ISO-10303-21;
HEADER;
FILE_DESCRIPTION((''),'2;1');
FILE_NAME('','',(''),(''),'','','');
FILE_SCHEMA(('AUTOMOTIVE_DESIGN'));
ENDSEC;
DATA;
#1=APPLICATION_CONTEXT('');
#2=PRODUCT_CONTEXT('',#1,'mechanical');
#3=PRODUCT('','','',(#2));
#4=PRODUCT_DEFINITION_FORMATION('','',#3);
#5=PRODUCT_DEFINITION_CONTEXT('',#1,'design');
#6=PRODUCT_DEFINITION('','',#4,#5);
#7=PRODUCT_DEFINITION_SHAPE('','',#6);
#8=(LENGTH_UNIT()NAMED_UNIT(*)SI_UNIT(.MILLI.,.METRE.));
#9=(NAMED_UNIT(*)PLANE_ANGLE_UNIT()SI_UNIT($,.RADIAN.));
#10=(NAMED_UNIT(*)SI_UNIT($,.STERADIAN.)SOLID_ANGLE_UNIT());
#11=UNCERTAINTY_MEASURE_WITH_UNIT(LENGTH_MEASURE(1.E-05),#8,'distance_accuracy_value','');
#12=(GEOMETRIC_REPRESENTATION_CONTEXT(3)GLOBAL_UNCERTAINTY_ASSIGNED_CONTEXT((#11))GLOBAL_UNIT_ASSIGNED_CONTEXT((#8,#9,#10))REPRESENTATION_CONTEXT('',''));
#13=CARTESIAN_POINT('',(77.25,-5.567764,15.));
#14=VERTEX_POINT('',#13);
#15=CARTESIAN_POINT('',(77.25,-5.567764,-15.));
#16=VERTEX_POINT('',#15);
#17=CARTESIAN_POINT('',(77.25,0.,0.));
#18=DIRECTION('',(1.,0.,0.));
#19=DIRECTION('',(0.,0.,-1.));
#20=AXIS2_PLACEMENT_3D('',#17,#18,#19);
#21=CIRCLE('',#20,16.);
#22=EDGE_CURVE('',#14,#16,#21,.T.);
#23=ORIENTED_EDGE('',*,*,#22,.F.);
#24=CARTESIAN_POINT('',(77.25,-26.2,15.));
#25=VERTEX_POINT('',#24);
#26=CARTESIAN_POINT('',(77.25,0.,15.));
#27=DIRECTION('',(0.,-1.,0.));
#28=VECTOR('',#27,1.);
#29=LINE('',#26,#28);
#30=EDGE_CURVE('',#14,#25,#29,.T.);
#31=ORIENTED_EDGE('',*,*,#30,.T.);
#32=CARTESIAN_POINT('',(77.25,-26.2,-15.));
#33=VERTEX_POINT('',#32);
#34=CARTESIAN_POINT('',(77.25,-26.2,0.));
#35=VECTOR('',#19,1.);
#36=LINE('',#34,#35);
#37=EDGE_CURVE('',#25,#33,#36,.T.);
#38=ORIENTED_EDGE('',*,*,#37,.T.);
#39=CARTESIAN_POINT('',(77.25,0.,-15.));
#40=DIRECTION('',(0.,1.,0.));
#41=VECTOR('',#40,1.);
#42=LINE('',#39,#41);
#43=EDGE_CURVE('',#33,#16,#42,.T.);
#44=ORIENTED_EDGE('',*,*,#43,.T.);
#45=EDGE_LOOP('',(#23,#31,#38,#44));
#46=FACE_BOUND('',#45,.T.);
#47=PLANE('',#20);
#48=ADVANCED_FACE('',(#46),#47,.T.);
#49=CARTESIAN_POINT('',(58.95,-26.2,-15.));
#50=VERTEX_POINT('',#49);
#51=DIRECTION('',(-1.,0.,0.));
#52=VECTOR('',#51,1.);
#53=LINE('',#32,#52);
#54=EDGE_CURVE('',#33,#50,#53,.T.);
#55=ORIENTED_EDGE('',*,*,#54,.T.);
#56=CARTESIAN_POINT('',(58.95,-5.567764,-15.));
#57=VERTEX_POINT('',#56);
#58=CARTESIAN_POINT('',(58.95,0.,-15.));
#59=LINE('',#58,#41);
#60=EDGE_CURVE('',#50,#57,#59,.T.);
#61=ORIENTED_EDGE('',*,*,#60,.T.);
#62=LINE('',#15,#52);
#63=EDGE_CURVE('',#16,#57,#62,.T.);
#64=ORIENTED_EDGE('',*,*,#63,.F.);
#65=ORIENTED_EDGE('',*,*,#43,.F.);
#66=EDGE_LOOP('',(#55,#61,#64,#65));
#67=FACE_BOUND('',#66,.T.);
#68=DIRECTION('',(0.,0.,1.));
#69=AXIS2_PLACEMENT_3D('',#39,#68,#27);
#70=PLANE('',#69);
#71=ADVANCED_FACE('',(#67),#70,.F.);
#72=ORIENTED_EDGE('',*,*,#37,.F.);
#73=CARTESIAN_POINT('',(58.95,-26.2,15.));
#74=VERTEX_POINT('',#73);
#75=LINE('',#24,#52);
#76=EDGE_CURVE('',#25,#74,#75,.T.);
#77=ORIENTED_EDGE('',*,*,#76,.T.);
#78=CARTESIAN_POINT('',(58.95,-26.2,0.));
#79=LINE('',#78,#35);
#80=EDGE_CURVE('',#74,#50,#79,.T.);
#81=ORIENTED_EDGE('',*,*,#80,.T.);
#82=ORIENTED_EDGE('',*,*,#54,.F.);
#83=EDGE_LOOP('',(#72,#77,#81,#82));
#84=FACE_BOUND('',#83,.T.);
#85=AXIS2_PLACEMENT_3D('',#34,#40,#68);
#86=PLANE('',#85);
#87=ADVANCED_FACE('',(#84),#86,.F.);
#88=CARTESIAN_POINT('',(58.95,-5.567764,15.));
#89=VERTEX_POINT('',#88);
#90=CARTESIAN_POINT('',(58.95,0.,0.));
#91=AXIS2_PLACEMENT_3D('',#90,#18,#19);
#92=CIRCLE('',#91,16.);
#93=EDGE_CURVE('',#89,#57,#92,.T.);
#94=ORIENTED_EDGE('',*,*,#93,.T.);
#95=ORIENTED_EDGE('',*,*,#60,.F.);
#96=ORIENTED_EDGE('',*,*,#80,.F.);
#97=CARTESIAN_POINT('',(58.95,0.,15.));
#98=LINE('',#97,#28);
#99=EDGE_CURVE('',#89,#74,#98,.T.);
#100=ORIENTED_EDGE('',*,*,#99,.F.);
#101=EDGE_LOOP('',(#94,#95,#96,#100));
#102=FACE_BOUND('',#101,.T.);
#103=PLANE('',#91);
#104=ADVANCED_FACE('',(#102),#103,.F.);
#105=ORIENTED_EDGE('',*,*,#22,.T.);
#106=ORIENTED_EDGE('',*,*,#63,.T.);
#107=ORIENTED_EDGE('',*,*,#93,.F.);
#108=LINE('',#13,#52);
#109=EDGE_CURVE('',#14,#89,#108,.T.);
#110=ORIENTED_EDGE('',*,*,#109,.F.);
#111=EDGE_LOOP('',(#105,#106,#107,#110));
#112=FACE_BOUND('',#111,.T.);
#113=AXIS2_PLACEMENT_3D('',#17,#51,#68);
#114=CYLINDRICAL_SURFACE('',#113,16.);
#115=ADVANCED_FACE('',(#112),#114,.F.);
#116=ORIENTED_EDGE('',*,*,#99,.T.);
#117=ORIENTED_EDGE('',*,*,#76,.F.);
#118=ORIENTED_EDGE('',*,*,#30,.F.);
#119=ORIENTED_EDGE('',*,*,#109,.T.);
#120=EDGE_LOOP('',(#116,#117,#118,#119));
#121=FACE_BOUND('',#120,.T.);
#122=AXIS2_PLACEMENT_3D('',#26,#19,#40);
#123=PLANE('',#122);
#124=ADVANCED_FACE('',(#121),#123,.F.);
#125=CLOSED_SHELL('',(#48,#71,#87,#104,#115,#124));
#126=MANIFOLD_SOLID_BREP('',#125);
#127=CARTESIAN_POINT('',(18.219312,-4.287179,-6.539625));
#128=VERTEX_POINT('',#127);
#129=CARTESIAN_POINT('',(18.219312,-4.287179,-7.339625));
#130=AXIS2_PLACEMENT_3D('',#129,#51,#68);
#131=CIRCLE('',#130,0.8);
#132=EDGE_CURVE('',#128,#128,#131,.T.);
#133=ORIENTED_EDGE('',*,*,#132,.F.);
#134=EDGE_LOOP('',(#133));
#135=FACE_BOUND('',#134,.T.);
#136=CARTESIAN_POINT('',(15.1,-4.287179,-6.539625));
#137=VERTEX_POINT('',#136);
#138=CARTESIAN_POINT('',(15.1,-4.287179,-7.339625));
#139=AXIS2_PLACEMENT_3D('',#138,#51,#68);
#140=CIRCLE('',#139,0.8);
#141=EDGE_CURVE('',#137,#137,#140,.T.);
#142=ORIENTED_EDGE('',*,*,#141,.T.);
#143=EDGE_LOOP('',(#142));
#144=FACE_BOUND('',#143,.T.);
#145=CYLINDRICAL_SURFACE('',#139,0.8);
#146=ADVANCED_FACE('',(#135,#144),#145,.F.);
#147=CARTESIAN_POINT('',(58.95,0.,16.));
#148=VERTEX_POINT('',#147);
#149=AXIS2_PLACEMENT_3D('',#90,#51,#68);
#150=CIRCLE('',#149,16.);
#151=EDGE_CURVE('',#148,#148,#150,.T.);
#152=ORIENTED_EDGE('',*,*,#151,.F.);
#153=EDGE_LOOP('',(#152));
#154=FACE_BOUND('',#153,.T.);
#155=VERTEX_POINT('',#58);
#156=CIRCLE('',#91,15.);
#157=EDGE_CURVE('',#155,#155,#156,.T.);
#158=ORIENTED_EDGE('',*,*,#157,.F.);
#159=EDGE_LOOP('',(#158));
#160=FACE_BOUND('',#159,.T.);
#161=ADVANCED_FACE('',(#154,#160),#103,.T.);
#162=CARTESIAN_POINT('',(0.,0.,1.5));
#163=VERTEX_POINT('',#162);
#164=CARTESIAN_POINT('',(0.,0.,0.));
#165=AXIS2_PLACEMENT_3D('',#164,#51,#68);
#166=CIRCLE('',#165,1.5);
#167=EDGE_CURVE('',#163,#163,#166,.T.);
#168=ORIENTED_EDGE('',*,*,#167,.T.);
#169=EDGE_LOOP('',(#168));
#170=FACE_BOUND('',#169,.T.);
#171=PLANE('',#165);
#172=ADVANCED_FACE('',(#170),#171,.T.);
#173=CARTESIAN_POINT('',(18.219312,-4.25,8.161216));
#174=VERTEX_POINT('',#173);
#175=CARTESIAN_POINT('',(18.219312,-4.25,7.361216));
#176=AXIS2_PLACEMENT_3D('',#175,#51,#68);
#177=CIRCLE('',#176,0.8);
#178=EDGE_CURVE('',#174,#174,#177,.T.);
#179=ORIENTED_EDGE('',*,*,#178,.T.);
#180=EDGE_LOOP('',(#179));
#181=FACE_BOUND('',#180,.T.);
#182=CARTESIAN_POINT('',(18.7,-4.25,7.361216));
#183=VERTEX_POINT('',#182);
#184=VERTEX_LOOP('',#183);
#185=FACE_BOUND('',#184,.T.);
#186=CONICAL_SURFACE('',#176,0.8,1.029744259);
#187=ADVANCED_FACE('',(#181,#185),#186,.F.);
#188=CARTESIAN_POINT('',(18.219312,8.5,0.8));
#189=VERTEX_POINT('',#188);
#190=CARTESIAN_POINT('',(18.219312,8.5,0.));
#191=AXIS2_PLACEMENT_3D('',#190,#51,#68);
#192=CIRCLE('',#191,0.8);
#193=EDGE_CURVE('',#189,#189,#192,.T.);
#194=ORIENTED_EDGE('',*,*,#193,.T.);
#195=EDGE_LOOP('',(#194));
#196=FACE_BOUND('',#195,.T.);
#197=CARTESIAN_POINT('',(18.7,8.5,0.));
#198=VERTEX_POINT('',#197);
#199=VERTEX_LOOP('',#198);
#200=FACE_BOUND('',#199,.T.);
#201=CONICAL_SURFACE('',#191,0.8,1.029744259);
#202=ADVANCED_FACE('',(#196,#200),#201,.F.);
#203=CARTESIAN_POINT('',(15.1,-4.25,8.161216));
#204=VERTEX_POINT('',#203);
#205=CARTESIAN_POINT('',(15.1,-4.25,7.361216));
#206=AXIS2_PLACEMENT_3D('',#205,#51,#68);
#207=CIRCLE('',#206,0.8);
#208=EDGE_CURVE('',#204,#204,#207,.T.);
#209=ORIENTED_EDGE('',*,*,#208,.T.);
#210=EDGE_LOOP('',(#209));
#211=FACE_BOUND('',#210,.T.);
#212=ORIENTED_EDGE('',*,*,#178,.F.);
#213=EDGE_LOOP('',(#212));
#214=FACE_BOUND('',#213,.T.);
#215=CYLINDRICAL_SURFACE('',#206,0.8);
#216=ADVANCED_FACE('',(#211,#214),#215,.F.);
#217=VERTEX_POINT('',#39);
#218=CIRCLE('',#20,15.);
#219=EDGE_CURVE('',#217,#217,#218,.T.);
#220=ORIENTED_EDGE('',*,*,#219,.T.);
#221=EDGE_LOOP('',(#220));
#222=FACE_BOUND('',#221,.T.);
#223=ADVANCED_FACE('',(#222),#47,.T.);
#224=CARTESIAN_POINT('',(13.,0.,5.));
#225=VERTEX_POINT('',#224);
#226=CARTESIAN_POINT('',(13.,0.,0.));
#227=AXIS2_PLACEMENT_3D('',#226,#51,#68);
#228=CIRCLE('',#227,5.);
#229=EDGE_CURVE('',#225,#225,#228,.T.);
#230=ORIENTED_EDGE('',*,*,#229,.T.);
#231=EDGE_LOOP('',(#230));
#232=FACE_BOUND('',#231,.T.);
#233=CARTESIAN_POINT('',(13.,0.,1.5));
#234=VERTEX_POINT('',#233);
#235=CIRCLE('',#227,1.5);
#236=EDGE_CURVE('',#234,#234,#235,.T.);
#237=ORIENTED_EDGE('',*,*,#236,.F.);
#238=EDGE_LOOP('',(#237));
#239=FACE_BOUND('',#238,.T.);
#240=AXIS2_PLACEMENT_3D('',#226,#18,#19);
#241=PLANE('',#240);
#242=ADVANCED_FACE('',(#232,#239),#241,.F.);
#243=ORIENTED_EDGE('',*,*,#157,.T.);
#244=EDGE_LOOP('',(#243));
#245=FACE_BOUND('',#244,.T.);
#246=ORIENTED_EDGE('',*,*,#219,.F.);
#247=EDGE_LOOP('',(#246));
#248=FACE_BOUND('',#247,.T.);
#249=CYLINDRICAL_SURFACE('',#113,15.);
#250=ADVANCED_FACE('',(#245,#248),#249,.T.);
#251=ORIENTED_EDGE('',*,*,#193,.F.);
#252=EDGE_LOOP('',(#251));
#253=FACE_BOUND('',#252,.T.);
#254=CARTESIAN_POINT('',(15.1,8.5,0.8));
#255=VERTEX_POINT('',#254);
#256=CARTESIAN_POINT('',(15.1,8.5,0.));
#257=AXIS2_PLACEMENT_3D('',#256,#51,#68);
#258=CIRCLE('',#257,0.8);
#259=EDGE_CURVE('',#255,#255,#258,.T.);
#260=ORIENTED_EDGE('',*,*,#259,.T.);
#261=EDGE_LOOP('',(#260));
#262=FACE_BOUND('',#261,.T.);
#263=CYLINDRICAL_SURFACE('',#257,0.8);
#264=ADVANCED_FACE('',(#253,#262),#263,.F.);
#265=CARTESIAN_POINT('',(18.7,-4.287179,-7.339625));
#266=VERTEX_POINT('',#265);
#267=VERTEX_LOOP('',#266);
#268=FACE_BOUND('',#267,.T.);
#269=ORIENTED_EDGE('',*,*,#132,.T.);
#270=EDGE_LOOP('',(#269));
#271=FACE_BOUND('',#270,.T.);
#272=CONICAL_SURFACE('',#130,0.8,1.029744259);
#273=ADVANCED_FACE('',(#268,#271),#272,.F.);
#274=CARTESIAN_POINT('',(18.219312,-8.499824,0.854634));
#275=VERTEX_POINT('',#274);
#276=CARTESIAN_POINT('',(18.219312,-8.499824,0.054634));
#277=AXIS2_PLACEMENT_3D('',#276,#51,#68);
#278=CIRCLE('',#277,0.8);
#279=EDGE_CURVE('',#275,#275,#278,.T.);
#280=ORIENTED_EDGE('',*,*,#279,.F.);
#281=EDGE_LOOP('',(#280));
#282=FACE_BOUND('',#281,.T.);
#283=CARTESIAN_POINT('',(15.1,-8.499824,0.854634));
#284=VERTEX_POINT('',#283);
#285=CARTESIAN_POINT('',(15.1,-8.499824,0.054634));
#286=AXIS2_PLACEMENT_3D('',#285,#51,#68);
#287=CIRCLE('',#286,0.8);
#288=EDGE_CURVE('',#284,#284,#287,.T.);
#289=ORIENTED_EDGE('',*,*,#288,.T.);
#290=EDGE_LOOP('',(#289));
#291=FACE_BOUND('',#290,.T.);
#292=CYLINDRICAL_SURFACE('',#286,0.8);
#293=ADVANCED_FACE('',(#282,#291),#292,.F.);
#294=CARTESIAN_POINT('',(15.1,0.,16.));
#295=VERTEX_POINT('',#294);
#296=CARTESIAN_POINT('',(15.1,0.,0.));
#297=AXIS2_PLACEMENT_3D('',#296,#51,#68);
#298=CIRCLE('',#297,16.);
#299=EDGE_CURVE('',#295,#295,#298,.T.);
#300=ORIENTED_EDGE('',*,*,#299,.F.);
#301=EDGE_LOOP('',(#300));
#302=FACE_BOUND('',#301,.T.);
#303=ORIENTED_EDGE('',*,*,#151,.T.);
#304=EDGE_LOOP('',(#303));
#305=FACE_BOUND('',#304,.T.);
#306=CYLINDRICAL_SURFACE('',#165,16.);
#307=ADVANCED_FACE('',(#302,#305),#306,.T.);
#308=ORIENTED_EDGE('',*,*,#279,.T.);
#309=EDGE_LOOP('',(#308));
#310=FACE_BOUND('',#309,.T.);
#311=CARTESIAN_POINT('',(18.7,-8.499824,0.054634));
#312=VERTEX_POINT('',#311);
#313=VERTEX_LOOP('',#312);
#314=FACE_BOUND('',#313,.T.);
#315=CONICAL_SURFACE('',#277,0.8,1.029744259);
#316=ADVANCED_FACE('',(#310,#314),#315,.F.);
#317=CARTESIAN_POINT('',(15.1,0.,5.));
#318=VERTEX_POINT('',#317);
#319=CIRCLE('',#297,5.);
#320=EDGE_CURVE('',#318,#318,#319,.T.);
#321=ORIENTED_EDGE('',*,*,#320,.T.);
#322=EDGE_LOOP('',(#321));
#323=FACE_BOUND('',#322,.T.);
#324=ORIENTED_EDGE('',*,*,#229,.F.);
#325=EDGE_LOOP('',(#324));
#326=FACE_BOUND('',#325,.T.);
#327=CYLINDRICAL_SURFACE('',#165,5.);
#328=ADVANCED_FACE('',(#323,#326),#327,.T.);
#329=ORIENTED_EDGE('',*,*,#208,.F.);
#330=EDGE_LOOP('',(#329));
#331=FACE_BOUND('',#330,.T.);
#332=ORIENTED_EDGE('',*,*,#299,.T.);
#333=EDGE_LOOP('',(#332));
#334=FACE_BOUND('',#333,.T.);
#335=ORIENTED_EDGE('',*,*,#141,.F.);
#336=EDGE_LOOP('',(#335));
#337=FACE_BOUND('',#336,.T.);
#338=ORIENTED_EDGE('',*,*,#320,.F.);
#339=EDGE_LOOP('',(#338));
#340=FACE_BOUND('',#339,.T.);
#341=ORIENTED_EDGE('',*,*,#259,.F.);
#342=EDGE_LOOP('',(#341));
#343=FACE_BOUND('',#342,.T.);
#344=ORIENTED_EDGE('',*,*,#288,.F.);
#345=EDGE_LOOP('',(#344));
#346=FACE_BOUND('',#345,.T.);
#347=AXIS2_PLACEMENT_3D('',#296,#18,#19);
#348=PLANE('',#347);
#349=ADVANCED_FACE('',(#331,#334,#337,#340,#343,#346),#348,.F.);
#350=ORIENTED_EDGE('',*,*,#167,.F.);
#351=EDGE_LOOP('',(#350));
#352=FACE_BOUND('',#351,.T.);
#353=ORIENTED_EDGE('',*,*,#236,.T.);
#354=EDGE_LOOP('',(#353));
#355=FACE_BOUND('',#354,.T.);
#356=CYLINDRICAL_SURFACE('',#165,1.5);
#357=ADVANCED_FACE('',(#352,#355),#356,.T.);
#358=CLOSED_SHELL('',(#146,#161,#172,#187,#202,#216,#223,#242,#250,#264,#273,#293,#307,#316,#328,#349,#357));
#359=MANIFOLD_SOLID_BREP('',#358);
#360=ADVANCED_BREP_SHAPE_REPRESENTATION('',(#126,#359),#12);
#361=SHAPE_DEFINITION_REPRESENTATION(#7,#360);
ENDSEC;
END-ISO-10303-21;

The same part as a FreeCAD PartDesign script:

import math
import FreeCAD as App
import Part
import Sketcher

doc = App.newDocument("Part")
params = doc.addObject("Spreadsheet::Sheet", "Params")
for row, (alias, value) in enumerate([
    ("sketch1_width", "13 mm"),
    ("sketch1_height", "16 mm"),
    ("sketch1_height2", "11 mm"),
    ("sketch1_width2", "2.1 mm"),
    ("sketch1_height3", "1.5 mm"),
    ("revolution_angle", "360 deg"),
    ("sketch2_diameter", "30 mm"),
    ("sketch2_radius", "16 mm"),
    ("sketch2_height", "30 mm"),
    ("pad1_length", "18.3 mm"),
    ("sketch3_diameter", "1.6 mm"),
    ("hole_diameter", "1.6 mm"),
    ("hole_depth", "3.119312 mm"),
], start=1):
    params.set(f"A{row}", alias)
    params.set(f"B{row}", "=" + value)
    params.setAlias(f"B{row}", alias)

body = doc.addObject("PartDesign::Body", "Body")
body.AllowCompound = True

sketch1 = doc.addObject("Sketcher::SketchObject", "Sketch")
body.addObject(sketch1)
sketch1.AttachmentSupport = (doc.XZ_Plane, [""])
sketch1.MapMode = "FlatFace"
sketch1.addGeometry([
    Part.LineSegment(App.Vector(0, -1.5, 0), App.Vector(0, 0, 0)),
    Part.LineSegment(App.Vector(0, 0, 0), App.Vector(59, 0, 0)),
    Part.LineSegment(App.Vector(59, 0, 0), App.Vector(59, -16, 0)),
    Part.LineSegment(App.Vector(59, -16, 0), App.Vector(15.1, -16, 0)),
    Part.LineSegment(App.Vector(15.1, -16, 0), App.Vector(15.1, -5, 0)),
    Part.LineSegment(App.Vector(15.1, -5, 0), App.Vector(13, -5, 0)),
    Part.LineSegment(App.Vector(13, -5, 0), App.Vector(13, -1.5, 0)),
    Part.LineSegment(App.Vector(13, -1.5, 0), App.Vector(0, -1.5, 0)),
], False)
sketch1.addConstraint([
    Sketcher.Constraint("Coincident", 0, 2, 1, 1),
    Sketcher.Constraint("Coincident", 1, 2, 2, 1),
    Sketcher.Constraint("Coincident", 2, 2, 3, 1),
    Sketcher.Constraint("Coincident", 3, 2, 4, 1),
    Sketcher.Constraint("Coincident", 4, 2, 5, 1),
    Sketcher.Constraint("Coincident", 5, 2, 6, 1),
    Sketcher.Constraint("Coincident", 6, 2, 7, 1),
    Sketcher.Constraint("Coincident", 7, 2, 0, 1),
    Sketcher.Constraint("Vertical", 0),
    Sketcher.Constraint("Horizontal", 1),
    Sketcher.Constraint("Vertical", 2),
    Sketcher.Constraint("Horizontal", 3),
    Sketcher.Constraint("Vertical", 4),
    Sketcher.Constraint("Horizontal", 5),
    Sketcher.Constraint("Vertical", 6),
    Sketcher.Constraint("Horizontal", 7),
    Sketcher.Constraint("Coincident", 0, 2, -1, 1),
    Sketcher.Constraint("DistanceX", 7, 2, 7, 1, 13.0),
    Sketcher.Constraint("DistanceY", 2, 2, 2, 1, 16.0),
    Sketcher.Constraint("DistanceY", 4, 1, 4, 2, 11.0),
    Sketcher.Constraint("DistanceX", 5, 2, 5, 1, 2.1),
    Sketcher.Constraint("DistanceY", 0, 1, 0, 2, 1.5),
    Sketcher.Constraint("DistanceX", 1, 1, 1, 2, 58.95),
])
sketch1.setExpression("Constraints[17]", "Params.sketch1_width")
sketch1.setExpression("Constraints[18]", "Params.sketch1_height")
sketch1.setExpression("Constraints[19]", "Params.sketch1_height2")
sketch1.setExpression("Constraints[20]", "Params.sketch1_width2")
sketch1.setExpression("Constraints[21]", "Params.sketch1_height3")
revolution = doc.addObject("PartDesign::Revolution", "Revolution")
body.addObject(revolution)
revolution.Profile = sketch1
revolution.ReferenceAxis = (sketch1, ["H_Axis"])
revolution.setExpression("Angle", "Params.revolution_angle")

sketch2 = doc.addObject("Sketcher::SketchObject", "Sketch001")
body.addObject(sketch2)
sketch2.AttachmentSupport = (doc.YZ_Plane, [""])
sketch2.MapMode = "FlatFace"
sketch2.AttachmentOffset = App.Placement(App.Vector(0, 0, 58.95), App.Rotation())
sketch2.addGeometry([
    Part.ArcOfCircle(Part.Circle(App.Vector(0, 0, 0), App.Vector(0, 0, 1), 16), math.radians(110), math.radians(250)),
    Part.LineSegment(App.Vector(-6, 15, 0), App.Vector(-26, 15, 0)),
    Part.LineSegment(App.Vector(-26, 15, 0), App.Vector(-26, -15, 0)),
    Part.LineSegment(App.Vector(-26, -15, 0), App.Vector(-6, -15, 0)),
    Part.Circle(App.Vector(0, 0, 0), App.Vector(0, 0, 1), 15),
], False)
sketch2.addConstraint([
    Sketcher.Constraint("Coincident", 0, 1, 1, 1),
    Sketcher.Constraint("Coincident", 1, 2, 2, 1),
    Sketcher.Constraint("Coincident", 2, 2, 3, 1),
    Sketcher.Constraint("Coincident", 3, 2, 0, 2),
    Sketcher.Constraint("Horizontal", 1),
    Sketcher.Constraint("Vertical", 2),
    Sketcher.Constraint("Horizontal", 3),
    Sketcher.Constraint("Coincident", 0, 3, -1, 1),
    Sketcher.Constraint("Coincident", 4, 3, -1, 1),
    Sketcher.Constraint("Vertical", 0, 1, 3, 2),
    Sketcher.Constraint("Diameter", 4, 30.0),
    Sketcher.Constraint("Radius", 0, 16.0),
    Sketcher.Constraint("DistanceY", 2, 2, 2, 1, 30.0),
    Sketcher.Constraint("DistanceX", 1, 2, -1, 1, 26.2),
])
sketch2.setExpression("Constraints[10]", "Params.sketch2_diameter")
sketch2.setExpression("Constraints[11]", "Params.sketch2_radius")
sketch2.setExpression("Constraints[12]", "Params.sketch2_height")
pad1 = doc.addObject("PartDesign::Pad", "Pad")
body.addObject(pad1)
pad1.Profile = sketch2
pad1.setExpression("Length", "Params.pad1_length")

sketch3 = doc.addObject("Sketcher::SketchObject", "Sketch002")
body.addObject(sketch3)
sketch3.AttachmentSupport = (doc.YZ_Plane, [""])
sketch3.MapMode = "FlatFace"
sketch3.AttachmentOffset = App.Placement(App.Vector(0, 0, 15.1), App.Rotation())
sketch3.addGeometry([
    Part.Circle(App.Vector(8.5, 0, 0), App.Vector(0, 0, 1), 0.8),
    Part.Circle(App.Vector(-4.3, -7.3, 0), App.Vector(0, 0, 1), 0.8),
    Part.Circle(App.Vector(-4.2, 7.4, 0), App.Vector(0, 0, 1), 0.8),
    Part.Circle(App.Vector(-8.5, 0.1, 0), App.Vector(0, 0, 1), 0.8),
], False)
sketch3.addConstraint([
    Sketcher.Constraint("Equal", 0, 1),
    Sketcher.Constraint("Equal", 1, 2),
    Sketcher.Constraint("Equal", 2, 3),
    Sketcher.Constraint("PointOnObject", 0, 3, -1),
    Sketcher.Constraint("Diameter", 0, 1.6),
    Sketcher.Constraint("DistanceX", -1, 1, 0, 3, 8.5),
    Sketcher.Constraint("DistanceX", 2, 3, -1, 1, 4.25),
    Sketcher.Constraint("DistanceX", 1, 3, -1, 1, 4.287179),
    Sketcher.Constraint("DistanceY", 1, 3, 2, 3, 14.700841),
    Sketcher.Constraint("DistanceY", 1, 3, 3, 3, 7.394259),
    Sketcher.Constraint("DistanceY", 1, 3, -1, 1, 7.339625),
    Sketcher.Constraint("DistanceX", 3, 3, -1, 1, 8.499824),
])
sketch3.setExpression("Constraints[4]", "Params.sketch3_diameter")
doc.recompute()
hole = doc.addObject("PartDesign::Hole", "Hole")
body.addObject(hole)
hole.Profile = sketch3
hole.ThreadType = "None"
hole.setExpression("Diameter", "Params.hole_diameter")
hole.DepthType = "Dimension"
hole.setExpression("Depth", "Params.hole_depth")
hole.DrillPoint = "Angled"
hole.DrillPointAngle = 118
hole.Reversed = True

doc.recompute()
